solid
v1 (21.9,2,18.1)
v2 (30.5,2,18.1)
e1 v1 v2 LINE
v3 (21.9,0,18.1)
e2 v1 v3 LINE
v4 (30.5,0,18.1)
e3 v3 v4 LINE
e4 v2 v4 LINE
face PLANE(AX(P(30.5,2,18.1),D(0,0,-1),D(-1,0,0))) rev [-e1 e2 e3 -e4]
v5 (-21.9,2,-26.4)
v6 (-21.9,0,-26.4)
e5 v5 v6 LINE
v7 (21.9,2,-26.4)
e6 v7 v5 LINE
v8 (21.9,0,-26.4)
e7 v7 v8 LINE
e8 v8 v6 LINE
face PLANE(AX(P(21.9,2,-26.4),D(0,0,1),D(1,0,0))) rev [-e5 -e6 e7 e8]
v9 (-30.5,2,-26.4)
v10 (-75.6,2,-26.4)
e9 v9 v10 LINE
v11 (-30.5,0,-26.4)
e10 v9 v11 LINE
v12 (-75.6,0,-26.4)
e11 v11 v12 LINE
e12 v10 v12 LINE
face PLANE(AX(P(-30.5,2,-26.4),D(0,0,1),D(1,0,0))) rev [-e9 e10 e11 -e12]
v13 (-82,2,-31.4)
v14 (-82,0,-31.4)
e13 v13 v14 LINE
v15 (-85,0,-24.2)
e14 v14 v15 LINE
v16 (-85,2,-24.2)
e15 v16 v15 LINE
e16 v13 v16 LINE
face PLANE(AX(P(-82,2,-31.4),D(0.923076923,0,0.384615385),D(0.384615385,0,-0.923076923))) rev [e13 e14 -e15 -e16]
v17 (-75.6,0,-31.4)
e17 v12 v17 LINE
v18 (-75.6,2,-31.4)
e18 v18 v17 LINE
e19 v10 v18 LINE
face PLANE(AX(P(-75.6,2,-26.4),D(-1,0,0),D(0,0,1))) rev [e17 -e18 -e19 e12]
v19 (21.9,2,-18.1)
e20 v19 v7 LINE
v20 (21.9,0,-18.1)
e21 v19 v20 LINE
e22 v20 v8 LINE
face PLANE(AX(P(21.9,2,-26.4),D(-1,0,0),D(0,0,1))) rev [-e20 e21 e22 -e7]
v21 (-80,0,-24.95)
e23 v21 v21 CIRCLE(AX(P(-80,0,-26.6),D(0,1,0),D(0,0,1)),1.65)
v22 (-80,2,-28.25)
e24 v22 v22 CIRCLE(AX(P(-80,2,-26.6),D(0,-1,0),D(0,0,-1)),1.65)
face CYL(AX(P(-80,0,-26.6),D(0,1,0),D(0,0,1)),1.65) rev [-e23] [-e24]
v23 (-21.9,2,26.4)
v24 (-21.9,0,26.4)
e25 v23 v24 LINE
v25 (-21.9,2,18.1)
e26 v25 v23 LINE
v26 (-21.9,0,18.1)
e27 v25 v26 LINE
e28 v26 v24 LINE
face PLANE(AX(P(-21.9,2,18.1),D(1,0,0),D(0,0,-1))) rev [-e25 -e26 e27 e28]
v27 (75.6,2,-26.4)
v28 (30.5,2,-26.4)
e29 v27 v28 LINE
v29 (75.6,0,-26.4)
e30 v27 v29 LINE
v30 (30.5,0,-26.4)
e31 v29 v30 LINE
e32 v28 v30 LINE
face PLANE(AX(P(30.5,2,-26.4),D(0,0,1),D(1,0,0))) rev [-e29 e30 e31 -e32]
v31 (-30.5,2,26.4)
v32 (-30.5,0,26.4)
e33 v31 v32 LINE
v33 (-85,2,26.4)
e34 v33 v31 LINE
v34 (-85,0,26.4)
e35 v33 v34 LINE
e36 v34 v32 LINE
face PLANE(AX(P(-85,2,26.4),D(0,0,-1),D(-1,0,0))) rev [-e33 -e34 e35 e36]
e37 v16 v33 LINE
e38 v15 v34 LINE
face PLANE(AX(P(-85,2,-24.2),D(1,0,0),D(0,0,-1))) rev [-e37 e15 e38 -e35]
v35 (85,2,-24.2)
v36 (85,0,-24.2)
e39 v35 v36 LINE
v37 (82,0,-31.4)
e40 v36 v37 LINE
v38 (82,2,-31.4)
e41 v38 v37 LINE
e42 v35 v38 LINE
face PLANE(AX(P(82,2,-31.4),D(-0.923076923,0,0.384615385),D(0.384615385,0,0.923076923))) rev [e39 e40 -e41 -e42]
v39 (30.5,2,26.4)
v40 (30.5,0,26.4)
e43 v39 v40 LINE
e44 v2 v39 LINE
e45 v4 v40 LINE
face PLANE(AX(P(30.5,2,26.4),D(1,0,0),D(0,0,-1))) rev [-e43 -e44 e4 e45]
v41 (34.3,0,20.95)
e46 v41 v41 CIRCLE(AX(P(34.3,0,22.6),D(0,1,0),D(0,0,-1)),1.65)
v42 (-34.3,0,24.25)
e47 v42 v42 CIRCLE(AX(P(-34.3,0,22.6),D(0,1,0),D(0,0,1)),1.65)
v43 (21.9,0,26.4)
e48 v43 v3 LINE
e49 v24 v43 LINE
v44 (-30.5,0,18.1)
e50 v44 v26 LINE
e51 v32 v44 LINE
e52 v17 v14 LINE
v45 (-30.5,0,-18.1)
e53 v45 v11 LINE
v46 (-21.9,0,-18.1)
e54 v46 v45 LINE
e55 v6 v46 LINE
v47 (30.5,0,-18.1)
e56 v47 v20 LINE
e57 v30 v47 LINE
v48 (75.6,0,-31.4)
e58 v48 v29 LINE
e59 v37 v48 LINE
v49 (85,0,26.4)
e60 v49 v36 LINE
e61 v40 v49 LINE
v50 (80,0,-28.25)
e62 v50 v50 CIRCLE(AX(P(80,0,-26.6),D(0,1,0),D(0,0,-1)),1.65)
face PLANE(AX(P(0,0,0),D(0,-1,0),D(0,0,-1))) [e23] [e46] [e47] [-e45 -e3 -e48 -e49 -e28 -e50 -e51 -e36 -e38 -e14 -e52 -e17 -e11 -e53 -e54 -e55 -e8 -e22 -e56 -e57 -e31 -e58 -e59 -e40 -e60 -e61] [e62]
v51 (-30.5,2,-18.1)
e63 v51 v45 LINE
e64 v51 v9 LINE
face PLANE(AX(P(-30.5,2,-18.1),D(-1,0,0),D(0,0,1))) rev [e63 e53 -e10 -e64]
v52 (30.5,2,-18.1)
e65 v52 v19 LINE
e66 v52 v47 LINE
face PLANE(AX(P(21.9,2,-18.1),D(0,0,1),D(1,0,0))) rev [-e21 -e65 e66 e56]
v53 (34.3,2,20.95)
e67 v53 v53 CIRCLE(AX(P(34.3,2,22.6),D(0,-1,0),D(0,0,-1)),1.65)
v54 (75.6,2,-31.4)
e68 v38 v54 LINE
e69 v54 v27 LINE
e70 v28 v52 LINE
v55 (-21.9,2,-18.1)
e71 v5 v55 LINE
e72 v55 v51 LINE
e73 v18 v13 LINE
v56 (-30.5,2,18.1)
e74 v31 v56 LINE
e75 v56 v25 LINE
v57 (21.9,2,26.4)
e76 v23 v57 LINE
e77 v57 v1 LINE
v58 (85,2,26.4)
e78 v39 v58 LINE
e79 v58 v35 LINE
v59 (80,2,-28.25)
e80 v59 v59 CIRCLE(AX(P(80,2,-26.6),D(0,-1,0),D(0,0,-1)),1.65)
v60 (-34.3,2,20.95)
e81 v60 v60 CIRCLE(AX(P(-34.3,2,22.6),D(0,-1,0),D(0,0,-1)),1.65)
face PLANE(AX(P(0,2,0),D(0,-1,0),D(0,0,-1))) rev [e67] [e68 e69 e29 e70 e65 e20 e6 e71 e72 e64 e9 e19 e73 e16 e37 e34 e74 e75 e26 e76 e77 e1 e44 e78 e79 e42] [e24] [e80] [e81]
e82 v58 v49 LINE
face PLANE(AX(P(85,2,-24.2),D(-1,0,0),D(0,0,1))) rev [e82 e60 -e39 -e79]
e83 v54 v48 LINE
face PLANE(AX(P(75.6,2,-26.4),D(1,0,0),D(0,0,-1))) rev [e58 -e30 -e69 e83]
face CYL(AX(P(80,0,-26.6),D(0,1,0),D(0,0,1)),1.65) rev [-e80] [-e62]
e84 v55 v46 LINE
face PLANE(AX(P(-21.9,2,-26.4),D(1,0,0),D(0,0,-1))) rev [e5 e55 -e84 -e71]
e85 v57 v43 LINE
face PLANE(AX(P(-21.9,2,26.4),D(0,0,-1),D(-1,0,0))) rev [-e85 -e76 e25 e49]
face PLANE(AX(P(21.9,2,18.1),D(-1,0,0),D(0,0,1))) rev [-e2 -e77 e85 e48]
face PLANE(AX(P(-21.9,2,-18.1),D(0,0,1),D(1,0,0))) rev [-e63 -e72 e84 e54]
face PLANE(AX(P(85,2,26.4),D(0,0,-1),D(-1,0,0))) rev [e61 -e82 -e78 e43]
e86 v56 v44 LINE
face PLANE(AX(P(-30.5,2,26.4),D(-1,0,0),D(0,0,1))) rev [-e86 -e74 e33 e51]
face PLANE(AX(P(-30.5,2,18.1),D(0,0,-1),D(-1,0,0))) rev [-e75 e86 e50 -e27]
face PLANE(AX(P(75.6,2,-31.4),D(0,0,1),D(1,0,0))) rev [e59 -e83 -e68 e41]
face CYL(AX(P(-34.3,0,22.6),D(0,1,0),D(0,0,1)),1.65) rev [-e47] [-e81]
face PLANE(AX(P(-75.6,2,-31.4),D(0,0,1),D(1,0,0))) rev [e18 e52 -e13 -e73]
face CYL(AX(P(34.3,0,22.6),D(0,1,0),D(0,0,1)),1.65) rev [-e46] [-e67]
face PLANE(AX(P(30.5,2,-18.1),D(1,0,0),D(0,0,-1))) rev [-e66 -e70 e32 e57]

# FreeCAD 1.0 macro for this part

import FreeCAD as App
import Part
import Sketcher
from FreeCAD import Vector
Q = App.Units.Quantity


def add_polygon(sketch, points):
    """Adds a closed chain of lines whose ends are joined by coincident constraints."""
    first, n = sketch.GeometryCount, len(points)
    for a, b in zip(points, points[1:] + points[:1]):
        sketch.addGeometry(Part.LineSegment(App.Vector(*a, 0), App.Vector(*b, 0)), False)
    for i in range(n):
        sketch.addConstraint(Sketcher.Constraint("Coincident", first + i, 2, first + (i + 1) % n, 1))

doc = App.newDocument("Part")
body = doc.addObject("PartDesign::Body", "Body")

# Sketch on XZ plane
sketch1 = body.newObject("Sketcher::SketchObject", "Sketch")
sketch1.AttachmentSupport = (doc.getObject("XZ_Plane"), [""])
sketch1.MapMode = "FlatFace"
add_polygon(sketch1, [(21.9, -26.4), (-21.9, -26.4), (-21.9, -18.1), (-30.5, -18.1), (-30.5, -26.4), (-75.6, -26.4), (-75.6, -31.4), (-82, -31.4), (-85, -24.2), (-85, 26.4), (-30.5, 26.4), (-30.5, 18.1), (-21.9, 18.1), (-21.9, 26.4), (21.9, 26.4), (21.9, 18.1), (30.5, 18.1), (30.5, 26.4), (85, 26.4), (85, -24.2), (82, -31.4), (75.6, -31.4), (75.6, -26.4), (30.5, -26.4), (30.5, -18.1), (21.9, -18.1)])  # lines 0-25
sketch1.addConstraint(Sketcher.Constraint("Horizontal", 0))
sketch1.addConstraint(Sketcher.Constraint("Vertical", 1))
sketch1.addConstraint(Sketcher.Constraint("Horizontal", 2))
sketch1.addConstraint(Sketcher.Constraint("Vertical", 3))
sketch1.addConstraint(Sketcher.Constraint("Horizontal", 4))
sketch1.addConstraint(Sketcher.Constraint("Vertical", 5))
sketch1.addConstraint(Sketcher.Constraint("Horizontal", 6))
sketch1.addConstraint(Sketcher.Constraint("Vertical", 8))
sketch1.addConstraint(Sketcher.Constraint("Horizontal", 9))
sketch1.addConstraint(Sketcher.Constraint("Vertical", 10))
sketch1.addConstraint(Sketcher.Constraint("Horizontal", 11))
sketch1.addConstraint(Sketcher.Constraint("Vertical", 12))
sketch1.addConstraint(Sketcher.Constraint("Horizontal", 13))
sketch1.addConstraint(Sketcher.Constraint("Vertical", 14))
sketch1.addConstraint(Sketcher.Constraint("Horizontal", 15))
sketch1.addConstraint(Sketcher.Constraint("Vertical", 16))
sketch1.addConstraint(Sketcher.Constraint("Horizontal", 17))
sketch1.addConstraint(Sketcher.Constraint("Vertical", 18))
sketch1.addConstraint(Sketcher.Constraint("Horizontal", 20))
sketch1.addConstraint(Sketcher.Constraint("Vertical", 21))
sketch1.addConstraint(Sketcher.Constraint("Horizontal", 22))
sketch1.addConstraint(Sketcher.Constraint("Vertical", 23))
sketch1.addConstraint(Sketcher.Constraint("Horizontal", 24))
sketch1.addConstraint(Sketcher.Constraint("Vertical", 25))
sketch1.addConstraint(Sketcher.Constraint("Symmetric", 0, 2, 13, 2, -1, 1))
sketch1.addConstraint(Sketcher.Constraint("Symmetric", 2, 2, 15, 2, -1, 1))
sketch1.addConstraint(Sketcher.Constraint("Symmetric", 9, 2, 22, 2, -1, 1))
sketch1.addConstraint(Sketcher.Constraint("Symmetric", 11, 2, 24, 2, -1, 1))
sketch1.addConstraint(Sketcher.Constraint("Symmetric", 11, 2, 14, 2, -2))
sketch1.addConstraint(Sketcher.Constraint("Symmetric", 9, 2, 16, 2, -2))
sketch1.addConstraint(Sketcher.Constraint("Symmetric", 7, 2, 18, 2, -2))
sketch1.addConstraint(Sketcher.Constraint("Symmetric", 6, 2, 19, 2, -2))
sketch1.addConstraint(Sketcher.Constraint("Symmetric", 4, 2, 21, 2, -2))
sketch1.addConstraint(Sketcher.Constraint("Horizontal", 0, 2, 3, 2))
sketch1.addConstraint(Sketcher.Constraint("DistanceY", 5, 2, 5, 1, Q("5 mm")))
sketch1.addConstraint(Sketcher.Constraint("DistanceX", 0, 2, 0, 1, Q("43.8 mm")))
sketch1.addConstraint(Sketcher.Constraint("DistanceX", 2, 2, 2, 1, Q("8.6 mm")))
sketch1.addConstraint(Sketcher.Constraint("DistanceX", 4, 2, 4, 1, Q("45.1 mm")))
sketch1.addConstraint(Sketcher.Constraint("DistanceX", 6, 2, 6, 1, Q("6.4 mm")))
sketch1.addConstraint(Sketcher.Constraint("DistanceX", 9, 1, 9, 2, Q("54.5 mm")))
sketch1.addConstraint(Sketcher.Constraint("DistanceY", 1, 1, 1, 2, Q("8.3 mm")))
sketch1.addConstraint(Sketcher.Constraint("DistanceY", 8, 1, 8, 2, Q("50.6 mm")))
sketch1.addConstraint(Sketcher.Constraint("Distance", 7, Q("7.8 mm")))
pad1 = body.newObject("PartDesign::Pad", "Pad")
pad1.Profile = sketch1
pad1.Length = 2
pad1.Reversed = True

# Sketch on XZ plane
sketch2 = body.newObject("Sketcher::SketchObject", "Sketch001")
sketch2.AttachmentSupport = (doc.getObject("XZ_Plane"), [""])
sketch2.MapMode = "FlatFace"
sketch2.AttachmentOffset = App.Placement(Vector(0, 0, -2), App.Rotation())
sketch2.addGeometry(Part.Circle(Vector(-80, -26.6, 0), Vector(0, 0, 1), 1.65), False)
sketch2.addGeometry(Part.Circle(Vector(-34.3, 22.6, 0), Vector(0, 0, 1), 1.65), False)
sketch2.addGeometry(Part.Circle(Vector(34.3, 22.6, 0), Vector(0, 0, 1), 1.65), False)
sketch2.addGeometry(Part.Circle(Vector(80, -26.6, 0), Vector(0, 0, 1), 1.65), False)
sketch2.addConstraint(Sketcher.Constraint("Equal", 0, 1))
sketch2.addConstraint(Sketcher.Constraint("Equal", 1, 2))
sketch2.addConstraint(Sketcher.Constraint("Equal", 2, 3))
sketch2.addConstraint(Sketcher.Constraint("Symmetric", 1, 3, 2, 3, -2))
sketch2.addConstraint(Sketcher.Constraint("Symmetric", 0, 3, 3, 3, -2))
sketch2.addConstraint(Sketcher.Constraint("Diameter", 0, Q("3.3 mm")))
sketch2.addConstraint(Sketcher.Constraint("DistanceX", 0, 3, -1, 1, Q("80 mm")))
sketch2.addConstraint(Sketcher.Constraint("DistanceY", 0, 3, -1, 1, Q("26.6 mm")))
sketch2.addConstraint(Sketcher.Constraint("DistanceX", 1, 3, -1, 1, Q("34.3 mm")))
sketch2.addConstraint(Sketcher.Constraint("DistanceY", -1, 1, 1, 3, Q("22.6 mm")))
pocket1 = body.newObject("PartDesign::Pocket", "Pocket")
pocket1.Profile = sketch2
pocket1.Type = "ThroughAll"
pocket1.Midplane = True

doc.recompute()
